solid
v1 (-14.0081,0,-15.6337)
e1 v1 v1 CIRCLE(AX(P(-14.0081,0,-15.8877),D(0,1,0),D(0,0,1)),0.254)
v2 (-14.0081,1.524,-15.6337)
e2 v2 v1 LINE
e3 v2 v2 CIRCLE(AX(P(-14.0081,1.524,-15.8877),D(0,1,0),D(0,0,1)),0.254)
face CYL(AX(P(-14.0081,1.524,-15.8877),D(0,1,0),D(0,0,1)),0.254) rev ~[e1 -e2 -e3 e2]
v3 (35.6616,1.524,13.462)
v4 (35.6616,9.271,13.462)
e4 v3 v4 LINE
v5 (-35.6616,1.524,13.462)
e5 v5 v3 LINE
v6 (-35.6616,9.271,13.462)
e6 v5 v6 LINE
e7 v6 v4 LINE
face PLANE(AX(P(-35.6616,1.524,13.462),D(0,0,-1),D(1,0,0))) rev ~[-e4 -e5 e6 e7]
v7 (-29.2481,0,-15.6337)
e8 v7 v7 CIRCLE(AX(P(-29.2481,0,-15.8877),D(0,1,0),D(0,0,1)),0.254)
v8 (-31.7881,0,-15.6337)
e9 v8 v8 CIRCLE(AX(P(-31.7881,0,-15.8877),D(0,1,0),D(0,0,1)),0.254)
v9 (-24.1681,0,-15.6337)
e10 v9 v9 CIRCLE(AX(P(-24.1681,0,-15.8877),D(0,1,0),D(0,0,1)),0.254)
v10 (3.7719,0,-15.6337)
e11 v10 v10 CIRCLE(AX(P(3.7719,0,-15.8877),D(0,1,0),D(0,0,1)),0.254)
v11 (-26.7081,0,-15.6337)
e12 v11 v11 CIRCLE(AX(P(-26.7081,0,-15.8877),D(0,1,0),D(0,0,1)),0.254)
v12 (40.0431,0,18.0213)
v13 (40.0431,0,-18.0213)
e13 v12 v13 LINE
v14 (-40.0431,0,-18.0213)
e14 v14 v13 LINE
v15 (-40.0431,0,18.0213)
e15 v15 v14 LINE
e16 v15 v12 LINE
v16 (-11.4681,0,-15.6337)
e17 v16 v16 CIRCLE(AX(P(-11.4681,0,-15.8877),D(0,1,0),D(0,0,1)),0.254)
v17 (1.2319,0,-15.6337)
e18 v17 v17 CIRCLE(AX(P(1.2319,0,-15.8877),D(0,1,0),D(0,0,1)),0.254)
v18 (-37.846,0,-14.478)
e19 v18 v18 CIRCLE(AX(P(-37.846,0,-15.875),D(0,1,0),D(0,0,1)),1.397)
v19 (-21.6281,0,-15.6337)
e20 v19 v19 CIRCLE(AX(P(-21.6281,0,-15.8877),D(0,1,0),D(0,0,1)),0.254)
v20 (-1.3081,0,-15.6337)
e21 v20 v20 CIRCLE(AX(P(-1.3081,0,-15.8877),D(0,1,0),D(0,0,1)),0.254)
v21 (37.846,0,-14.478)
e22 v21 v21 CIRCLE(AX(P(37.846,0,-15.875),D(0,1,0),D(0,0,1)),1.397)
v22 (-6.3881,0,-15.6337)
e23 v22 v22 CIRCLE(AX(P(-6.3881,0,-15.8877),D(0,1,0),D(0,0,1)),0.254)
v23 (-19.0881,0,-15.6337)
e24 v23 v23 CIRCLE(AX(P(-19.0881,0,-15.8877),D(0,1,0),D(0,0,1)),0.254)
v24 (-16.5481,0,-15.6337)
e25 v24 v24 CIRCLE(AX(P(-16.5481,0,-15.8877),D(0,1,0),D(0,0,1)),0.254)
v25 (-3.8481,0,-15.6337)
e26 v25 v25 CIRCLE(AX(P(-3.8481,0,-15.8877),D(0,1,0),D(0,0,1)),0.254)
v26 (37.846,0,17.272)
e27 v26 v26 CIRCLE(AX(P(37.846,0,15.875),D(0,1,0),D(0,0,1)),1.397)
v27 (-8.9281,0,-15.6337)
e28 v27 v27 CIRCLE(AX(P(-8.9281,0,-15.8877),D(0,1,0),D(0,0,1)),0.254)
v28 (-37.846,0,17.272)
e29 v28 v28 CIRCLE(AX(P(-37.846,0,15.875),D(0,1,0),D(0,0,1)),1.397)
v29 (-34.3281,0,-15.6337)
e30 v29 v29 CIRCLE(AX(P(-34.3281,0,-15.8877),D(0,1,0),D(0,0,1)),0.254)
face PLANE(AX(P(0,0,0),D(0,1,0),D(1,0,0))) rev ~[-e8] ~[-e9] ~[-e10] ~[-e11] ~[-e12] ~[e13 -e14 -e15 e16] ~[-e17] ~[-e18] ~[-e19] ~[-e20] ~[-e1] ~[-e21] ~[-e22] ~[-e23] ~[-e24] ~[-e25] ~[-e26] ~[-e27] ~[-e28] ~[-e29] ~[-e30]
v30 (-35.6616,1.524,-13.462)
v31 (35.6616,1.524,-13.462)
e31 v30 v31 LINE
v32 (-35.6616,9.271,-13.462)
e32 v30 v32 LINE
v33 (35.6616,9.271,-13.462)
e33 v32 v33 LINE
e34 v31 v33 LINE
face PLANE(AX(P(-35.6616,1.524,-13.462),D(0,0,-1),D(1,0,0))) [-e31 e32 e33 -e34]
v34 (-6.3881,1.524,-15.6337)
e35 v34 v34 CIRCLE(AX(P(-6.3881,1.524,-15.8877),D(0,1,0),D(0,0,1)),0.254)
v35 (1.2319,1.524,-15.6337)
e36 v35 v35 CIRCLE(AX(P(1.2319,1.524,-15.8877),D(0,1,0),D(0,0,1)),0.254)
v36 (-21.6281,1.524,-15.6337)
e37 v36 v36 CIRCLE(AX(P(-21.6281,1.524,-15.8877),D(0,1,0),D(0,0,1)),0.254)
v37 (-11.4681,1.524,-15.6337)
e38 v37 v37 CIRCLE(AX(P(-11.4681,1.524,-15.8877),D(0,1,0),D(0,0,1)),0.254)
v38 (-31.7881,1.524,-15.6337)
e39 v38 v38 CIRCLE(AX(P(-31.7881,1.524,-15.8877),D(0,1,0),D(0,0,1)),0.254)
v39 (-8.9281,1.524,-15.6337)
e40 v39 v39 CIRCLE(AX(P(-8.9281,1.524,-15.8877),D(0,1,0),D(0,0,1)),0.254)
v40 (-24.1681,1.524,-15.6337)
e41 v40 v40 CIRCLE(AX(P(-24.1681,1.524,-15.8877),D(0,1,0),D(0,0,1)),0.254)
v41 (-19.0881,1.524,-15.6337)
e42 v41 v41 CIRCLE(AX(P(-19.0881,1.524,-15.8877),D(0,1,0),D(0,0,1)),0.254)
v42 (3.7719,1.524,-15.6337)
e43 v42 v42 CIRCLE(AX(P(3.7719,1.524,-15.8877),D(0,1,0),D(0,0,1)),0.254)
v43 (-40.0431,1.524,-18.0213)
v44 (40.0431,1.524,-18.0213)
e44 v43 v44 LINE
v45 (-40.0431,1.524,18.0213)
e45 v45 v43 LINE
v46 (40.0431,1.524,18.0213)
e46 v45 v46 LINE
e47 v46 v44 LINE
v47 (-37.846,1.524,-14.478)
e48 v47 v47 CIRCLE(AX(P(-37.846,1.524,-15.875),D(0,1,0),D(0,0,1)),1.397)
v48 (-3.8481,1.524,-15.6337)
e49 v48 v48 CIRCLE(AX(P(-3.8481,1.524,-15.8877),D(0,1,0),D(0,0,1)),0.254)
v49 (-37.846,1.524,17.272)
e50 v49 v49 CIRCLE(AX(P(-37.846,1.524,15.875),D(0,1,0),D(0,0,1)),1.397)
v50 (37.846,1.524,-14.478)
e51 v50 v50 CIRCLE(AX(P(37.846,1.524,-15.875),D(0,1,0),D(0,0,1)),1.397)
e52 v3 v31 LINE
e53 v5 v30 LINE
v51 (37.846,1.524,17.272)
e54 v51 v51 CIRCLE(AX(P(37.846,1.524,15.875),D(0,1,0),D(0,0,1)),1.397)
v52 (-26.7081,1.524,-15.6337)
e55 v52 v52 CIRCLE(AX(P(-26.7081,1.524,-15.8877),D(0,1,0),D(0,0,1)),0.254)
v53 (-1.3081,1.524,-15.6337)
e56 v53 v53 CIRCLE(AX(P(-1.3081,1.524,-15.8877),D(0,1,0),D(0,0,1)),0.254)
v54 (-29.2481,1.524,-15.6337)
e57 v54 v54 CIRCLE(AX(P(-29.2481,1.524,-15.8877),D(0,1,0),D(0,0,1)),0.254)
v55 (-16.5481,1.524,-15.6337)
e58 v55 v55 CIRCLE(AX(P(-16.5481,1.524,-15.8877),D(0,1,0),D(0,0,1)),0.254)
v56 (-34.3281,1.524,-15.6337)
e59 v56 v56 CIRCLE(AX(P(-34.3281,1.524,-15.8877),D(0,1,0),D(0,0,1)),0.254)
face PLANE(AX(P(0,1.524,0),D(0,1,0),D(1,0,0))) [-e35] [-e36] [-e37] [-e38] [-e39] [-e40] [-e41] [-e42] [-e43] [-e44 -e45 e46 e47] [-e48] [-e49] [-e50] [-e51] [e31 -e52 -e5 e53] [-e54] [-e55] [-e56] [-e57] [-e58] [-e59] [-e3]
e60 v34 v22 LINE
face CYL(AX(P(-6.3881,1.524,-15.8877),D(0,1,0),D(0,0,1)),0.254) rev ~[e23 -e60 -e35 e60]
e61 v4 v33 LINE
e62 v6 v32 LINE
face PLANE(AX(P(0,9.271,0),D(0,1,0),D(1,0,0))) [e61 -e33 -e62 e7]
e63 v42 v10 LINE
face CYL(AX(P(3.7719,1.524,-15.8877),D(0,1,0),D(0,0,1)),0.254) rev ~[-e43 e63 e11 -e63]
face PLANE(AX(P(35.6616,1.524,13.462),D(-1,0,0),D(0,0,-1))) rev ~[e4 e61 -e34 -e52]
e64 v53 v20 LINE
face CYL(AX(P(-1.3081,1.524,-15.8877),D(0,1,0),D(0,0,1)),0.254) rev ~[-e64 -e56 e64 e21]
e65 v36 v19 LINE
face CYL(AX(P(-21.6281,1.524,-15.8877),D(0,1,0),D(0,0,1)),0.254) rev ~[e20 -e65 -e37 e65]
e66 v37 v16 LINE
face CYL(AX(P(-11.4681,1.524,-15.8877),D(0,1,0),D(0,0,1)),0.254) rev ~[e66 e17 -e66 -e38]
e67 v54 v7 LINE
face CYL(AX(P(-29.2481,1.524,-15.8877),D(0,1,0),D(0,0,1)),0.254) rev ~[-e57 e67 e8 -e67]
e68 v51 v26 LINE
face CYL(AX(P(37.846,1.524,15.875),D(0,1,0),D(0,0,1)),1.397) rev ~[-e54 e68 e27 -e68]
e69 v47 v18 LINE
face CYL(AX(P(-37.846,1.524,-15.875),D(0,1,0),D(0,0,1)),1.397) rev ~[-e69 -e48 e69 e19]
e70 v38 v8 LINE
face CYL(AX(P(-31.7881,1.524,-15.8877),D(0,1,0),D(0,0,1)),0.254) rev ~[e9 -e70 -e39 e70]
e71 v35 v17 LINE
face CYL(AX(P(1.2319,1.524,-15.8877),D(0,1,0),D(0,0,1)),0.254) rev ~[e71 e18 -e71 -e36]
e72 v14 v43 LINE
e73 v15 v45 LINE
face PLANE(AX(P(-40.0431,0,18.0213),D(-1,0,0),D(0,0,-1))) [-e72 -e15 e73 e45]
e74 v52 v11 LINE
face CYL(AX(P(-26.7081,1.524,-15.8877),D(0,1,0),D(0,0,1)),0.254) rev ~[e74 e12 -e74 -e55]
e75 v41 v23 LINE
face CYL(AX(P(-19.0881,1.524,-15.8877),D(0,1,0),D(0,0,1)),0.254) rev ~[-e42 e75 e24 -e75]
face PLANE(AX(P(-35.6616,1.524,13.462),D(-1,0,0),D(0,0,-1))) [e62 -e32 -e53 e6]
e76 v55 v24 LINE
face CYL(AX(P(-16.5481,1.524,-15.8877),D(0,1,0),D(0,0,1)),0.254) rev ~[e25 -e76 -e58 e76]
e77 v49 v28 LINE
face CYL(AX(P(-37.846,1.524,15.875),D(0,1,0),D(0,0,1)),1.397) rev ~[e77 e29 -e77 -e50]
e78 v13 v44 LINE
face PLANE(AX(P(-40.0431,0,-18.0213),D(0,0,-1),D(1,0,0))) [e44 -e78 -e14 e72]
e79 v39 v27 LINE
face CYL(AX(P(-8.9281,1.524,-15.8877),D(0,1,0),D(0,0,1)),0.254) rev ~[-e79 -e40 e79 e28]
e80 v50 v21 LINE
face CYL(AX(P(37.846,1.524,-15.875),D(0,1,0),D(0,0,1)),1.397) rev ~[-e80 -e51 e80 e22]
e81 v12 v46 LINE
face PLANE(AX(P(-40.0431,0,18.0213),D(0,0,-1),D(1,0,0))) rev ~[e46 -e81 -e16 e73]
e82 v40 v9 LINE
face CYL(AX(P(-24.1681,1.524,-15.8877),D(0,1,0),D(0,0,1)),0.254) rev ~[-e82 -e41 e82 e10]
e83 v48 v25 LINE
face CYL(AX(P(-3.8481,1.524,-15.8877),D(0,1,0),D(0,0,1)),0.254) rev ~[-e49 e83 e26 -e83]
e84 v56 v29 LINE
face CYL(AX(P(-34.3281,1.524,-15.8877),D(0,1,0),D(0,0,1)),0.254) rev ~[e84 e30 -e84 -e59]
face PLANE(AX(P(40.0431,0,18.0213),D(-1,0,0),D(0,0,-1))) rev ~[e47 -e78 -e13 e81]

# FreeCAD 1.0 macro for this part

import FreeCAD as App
import Part
import Sketcher
Q = App.Units.Quantity


def add_polygon(sketch, points):
    """Adds a closed chain of lines whose ends are joined by coincident constraints."""
    first, n = sketch.GeometryCount, len(points)
    for a, b in zip(points, points[1:] + points[:1]):
        sketch.addGeometry(Part.LineSegment(App.Vector(*a, 0), App.Vector(*b, 0)), False)
    for i in range(n):
        sketch.addConstraint(Sketcher.Constraint("Coincident", first + i, 2, first + (i + 1) % n, 1))

doc = App.newDocument("Part")
body = doc.addObject("PartDesign::Body", "Body")

sketch1 = doc.addObject("Sketcher::SketchObject", "Sketch")
body.addObject(sketch1)
sketch1.AttachmentSupport = (doc.XZ_Plane, [""])
sketch1.MapMode = "FlatFace"
add_polygon(sketch1, [(-40, -18), (-40, 18), (40, 18), (40, -18)])
sketch1.addConstraint([
    Sketcher.Constraint("Vertical", 0),
    Sketcher.Constraint("Horizontal", 1),
    Sketcher.Constraint("Vertical", 2),
    Sketcher.Constraint("Horizontal", 3),
    Sketcher.Constraint("Symmetric", 0, 2, 2, 2, -1, 1),
    Sketcher.Constraint("DistanceX", 1, 1, 1, 2, Q("3.153 in")),
    Sketcher.Constraint("DistanceY", 0, 1, 0, 2, Q("1.419 in")),
])
pad1 = doc.addObject("PartDesign::Pad", "Pad")
body.addObject(pad1)
pad1.Profile = sketch1
pad1.Length = Q("0.06 in")
pad1.Reversed = True

sketch2 = doc.addObject("Sketcher::SketchObject", "Sketch001")
body.addObject(sketch2)
sketch2.AttachmentSupport = (doc.XZ_Plane, [""])
sketch2.MapMode = "FlatFace"
sketch2.AttachmentOffset = App.Placement(App.Vector(0, 0, -0.06 * 25.4), App.Rotation())
add_polygon(sketch2, [(-36, -13), (-36, 13), (36, 13), (36, -13)])
sketch2.addConstraint([
    Sketcher.Constraint("Vertical", 0),
    Sketcher.Constraint("Horizontal", 1),
    Sketcher.Constraint("Vertical", 2),
    Sketcher.Constraint("Horizontal", 3),
    Sketcher.Constraint("Symmetric", 0, 2, 2, 2, -1, 1),
    Sketcher.Constraint("DistanceY", 0, 1, 0, 2, Q("1.06 in")),
    Sketcher.Constraint("DistanceX", 1, 1, 1, 2, Q("2.808 in")),
])
pad2 = doc.addObject("PartDesign::Pad", "Pad001")
body.addObject(pad2)
pad2.Profile = sketch2
pad2.Length = Q("0.305 in")
pad2.Reversed = True

sketch3 = doc.addObject("Sketcher::SketchObject", "Sketch002")
body.addObject(sketch3)
sketch3.AttachmentSupport = (doc.XZ_Plane, [""])
sketch3.MapMode = "FlatFace"
sketch3.AttachmentOffset = App.Placement(App.Vector(0, 0, -0.06 * 25.4), App.Rotation())
sketch3.addGeometry([
    Part.Circle(App.Vector(-37.8, -15.9, 0), App.Vector(0, 0, 1), 1.4),
    Part.Circle(App.Vector(37.8, -15.9, 0), App.Vector(0, 0, 1), 1.4),
    Part.Circle(App.Vector(37.8, 15.9, 0), App.Vector(0, 0, 1), 1.4),
    Part.Circle(App.Vector(-37.8, 15.9, 0), App.Vector(0, 0, 1), 1.4),
], False)
sketch3.addConstraint([
    Sketcher.Constraint("Equal", 0, 1),
    Sketcher.Constraint("Equal", 1, 2),
    Sketcher.Constraint("Equal", 2, 3),
    Sketcher.Constraint("Symmetric", 0, 3, 2, 3, -1, 1),
    Sketcher.Constraint("Symmetric", 1, 3, 3, 3, -1, 1),
    Sketcher.Constraint("Symmetric", 0, 3, 1, 3, -2),
    Sketcher.Constraint("Diameter", 0, Q("0.11 in")),
    Sketcher.Constraint("DistanceX", 0, 3, -1, 1, Q("1.49 in")),
    Sketcher.Constraint("DistanceY", 1, 3, 2, 3, Q("1.25 in")),
])
pocket1 = doc.addObject("PartDesign::Pocket", "Pocket")
body.addObject(pocket1)
pocket1.Profile = sketch3
pocket1.Type = "ThroughAll"
pocket1.Reversed = True

sketch4 = doc.addObject("Sketcher::SketchObject", "Sketch003")
body.addObject(sketch4)
sketch4.AttachmentSupport = (doc.XZ_Plane, [""])
sketch4.MapMode = "FlatFace"
sketch4.AttachmentOffset = App.Placement(App.Vector(0, 0, -0.06 * 25.4), App.Rotation())
sketch4.addGeometry([
    Part.Circle(App.Vector(-34.33, -15.89, 0), App.Vector(0, 0, 1), 0.25),
    Part.Circle(App.Vector(-31.79, -15.89, 0), App.Vector(0, 0, 1), 0.25),
    Part.Circle(App.Vector(-29.25, -15.89, 0), App.Vector(0, 0, 1), 0.25),
    Part.Circle(App.Vector(-26.71, -15.89, 0), App.Vector(0, 0, 1), 0.25),
    Part.Circle(App.Vector(-24.17, -15.89, 0), App.Vector(0, 0, 1), 0.25),
    Part.Circle(App.Vector(-21.63, -15.89, 0), App.Vector(0, 0, 1), 0.25),
    Part.Circle(App.Vector(-19.09, -15.89, 0), App.Vector(0, 0, 1), 0.25),
    Part.Circle(App.Vector(-16.55, -15.89, 0), App.Vector(0, 0, 1), 0.25),
    Part.Circle(App.Vector(-14.01, -15.89, 0), App.Vector(0, 0, 1), 0.25),
    Part.Circle(App.Vector(-11.47, -15.89, 0), App.Vector(0, 0, 1), 0.25),
    Part.Circle(App.Vector(-8.93, -15.89, 0), App.Vector(0, 0, 1), 0.25),
    Part.Circle(App.Vector(-6.39, -15.89, 0), App.Vector(0, 0, 1), 0.25),
    Part.Circle(App.Vector(-3.85, -15.89, 0), App.Vector(0, 0, 1), 0.25),
    Part.Circle(App.Vector(-1.31, -15.89, 0), App.Vector(0, 0, 1), 0.25),
    Part.Circle(App.Vector(1.23, -15.89, 0), App.Vector(0, 0, 1), 0.25),
    Part.Circle(App.Vector(3.77, -15.89, 0), App.Vector(0, 0, 1), 0.25),
], False)
sketch4.addConstraint([
    Sketcher.Constraint("Equal", 0, 1),
    Sketcher.Constraint("Equal", 1, 2),
    Sketcher.Constraint("Equal", 2, 3),
    Sketcher.Constraint("Equal", 3, 4),
    Sketcher.Constraint("Equal", 4, 5),
    Sketcher.Constraint("Equal", 5, 6),
    Sketcher.Constraint("Equal", 6, 7),
    Sketcher.Constraint("Equal", 7, 8),
    Sketcher.Constraint("Equal", 8, 9),
    Sketcher.Constraint("Equal", 9, 10),
    Sketcher.Constraint("Equal", 10, 11),
    Sketcher.Constraint("Equal", 11, 12),
    Sketcher.Constraint("Equal", 12, 13),
    Sketcher.Constraint("Equal", 13, 14),
    Sketcher.Constraint("Equal", 14, 15),
    Sketcher.Constraint("Horizontal", 0, 3, 1, 3),
    Sketcher.Constraint("Horizontal", 1, 3, 2, 3),
    Sketcher.Constraint("Horizontal", 2, 3, 3, 3),
    Sketcher.Constraint("Horizontal", 3, 3, 4, 3),
    Sketcher.Constraint("Horizontal", 4, 3, 5, 3),
    Sketcher.Constraint("Horizontal", 5, 3, 6, 3),
    Sketcher.Constraint("Horizontal", 6, 3, 7, 3),
    Sketcher.Constraint("Horizontal", 7, 3, 8, 3),
    Sketcher.Constraint("Horizontal", 8, 3, 9, 3),
    Sketcher.Constraint("Horizontal", 9, 3, 10, 3),
    Sketcher.Constraint("Horizontal", 10, 3, 11, 3),
    Sketcher.Constraint("Horizontal", 11, 3, 12, 3),
    Sketcher.Constraint("Horizontal", 12, 3, 13, 3),
    Sketcher.Constraint("Horizontal", 13, 3, 14, 3),
    Sketcher.Constraint("Horizontal", 14, 3, 15, 3),
    Sketcher.Constraint("Diameter", 0, Q("0.02 in")),
    Sketcher.Constraint("DistanceX", 0, 3, 1, 3, Q("0.1 in")),
    Sketcher.Constraint("DistanceX", 1, 3, 2, 3, Q("0.1 in")),
    Sketcher.Constraint("DistanceX", 2, 3, 3, 3, Q("0.1 in")),
    Sketcher.Constraint("DistanceX", 3, 3, 4, 3, Q("0.1 in")),
    Sketcher.Constraint("DistanceX", 4, 3, 5, 3, Q("0.1 in")),
    Sketcher.Constraint("DistanceX", 5, 3, 6, 3, Q("0.1 in")),
    Sketcher.Constraint("DistanceX", 6, 3, 7, 3, Q("0.1 in")),
    Sketcher.Constraint("DistanceX", 7, 3, 8, 3, Q("0.1 in")),
    Sketcher.Constraint("DistanceX", 8, 3, 9, 3, Q("0.1 in")),
    Sketcher.Constraint("DistanceX", 9, 3, 10, 3, Q("0.1 in")),
    Sketcher.Constraint("DistanceX", 10, 3, 11, 3, Q("0.1 in")),
    Sketcher.Constraint("DistanceX", 11, 3, 12, 3, Q("0.1 in")),
    Sketcher.Constraint("DistanceX", 12, 3, 13, 3, Q("0.1 in")),
    Sketcher.Constraint("DistanceX", 13, 3, 14, 3, Q("0.1 in")),
    Sketcher.Constraint("DistanceX", 14, 3, 15, 3, Q("0.1 in")),
    Sketcher.Constraint("DistanceX", 0, 3, -1, 1, Q("1.3515 in")),
    Sketcher.Constraint("DistanceY", 0, 3, -1, 1, Q("0.6255 in")),
])
pocket2 = doc.addObject("PartDesign::Pocket", "Pocket001")
body.addObject(pocket2)
pocket2.Profile = sketch4
pocket2.Type = "ThroughAll"
pocket2.Reversed = True

doc.recompute()
